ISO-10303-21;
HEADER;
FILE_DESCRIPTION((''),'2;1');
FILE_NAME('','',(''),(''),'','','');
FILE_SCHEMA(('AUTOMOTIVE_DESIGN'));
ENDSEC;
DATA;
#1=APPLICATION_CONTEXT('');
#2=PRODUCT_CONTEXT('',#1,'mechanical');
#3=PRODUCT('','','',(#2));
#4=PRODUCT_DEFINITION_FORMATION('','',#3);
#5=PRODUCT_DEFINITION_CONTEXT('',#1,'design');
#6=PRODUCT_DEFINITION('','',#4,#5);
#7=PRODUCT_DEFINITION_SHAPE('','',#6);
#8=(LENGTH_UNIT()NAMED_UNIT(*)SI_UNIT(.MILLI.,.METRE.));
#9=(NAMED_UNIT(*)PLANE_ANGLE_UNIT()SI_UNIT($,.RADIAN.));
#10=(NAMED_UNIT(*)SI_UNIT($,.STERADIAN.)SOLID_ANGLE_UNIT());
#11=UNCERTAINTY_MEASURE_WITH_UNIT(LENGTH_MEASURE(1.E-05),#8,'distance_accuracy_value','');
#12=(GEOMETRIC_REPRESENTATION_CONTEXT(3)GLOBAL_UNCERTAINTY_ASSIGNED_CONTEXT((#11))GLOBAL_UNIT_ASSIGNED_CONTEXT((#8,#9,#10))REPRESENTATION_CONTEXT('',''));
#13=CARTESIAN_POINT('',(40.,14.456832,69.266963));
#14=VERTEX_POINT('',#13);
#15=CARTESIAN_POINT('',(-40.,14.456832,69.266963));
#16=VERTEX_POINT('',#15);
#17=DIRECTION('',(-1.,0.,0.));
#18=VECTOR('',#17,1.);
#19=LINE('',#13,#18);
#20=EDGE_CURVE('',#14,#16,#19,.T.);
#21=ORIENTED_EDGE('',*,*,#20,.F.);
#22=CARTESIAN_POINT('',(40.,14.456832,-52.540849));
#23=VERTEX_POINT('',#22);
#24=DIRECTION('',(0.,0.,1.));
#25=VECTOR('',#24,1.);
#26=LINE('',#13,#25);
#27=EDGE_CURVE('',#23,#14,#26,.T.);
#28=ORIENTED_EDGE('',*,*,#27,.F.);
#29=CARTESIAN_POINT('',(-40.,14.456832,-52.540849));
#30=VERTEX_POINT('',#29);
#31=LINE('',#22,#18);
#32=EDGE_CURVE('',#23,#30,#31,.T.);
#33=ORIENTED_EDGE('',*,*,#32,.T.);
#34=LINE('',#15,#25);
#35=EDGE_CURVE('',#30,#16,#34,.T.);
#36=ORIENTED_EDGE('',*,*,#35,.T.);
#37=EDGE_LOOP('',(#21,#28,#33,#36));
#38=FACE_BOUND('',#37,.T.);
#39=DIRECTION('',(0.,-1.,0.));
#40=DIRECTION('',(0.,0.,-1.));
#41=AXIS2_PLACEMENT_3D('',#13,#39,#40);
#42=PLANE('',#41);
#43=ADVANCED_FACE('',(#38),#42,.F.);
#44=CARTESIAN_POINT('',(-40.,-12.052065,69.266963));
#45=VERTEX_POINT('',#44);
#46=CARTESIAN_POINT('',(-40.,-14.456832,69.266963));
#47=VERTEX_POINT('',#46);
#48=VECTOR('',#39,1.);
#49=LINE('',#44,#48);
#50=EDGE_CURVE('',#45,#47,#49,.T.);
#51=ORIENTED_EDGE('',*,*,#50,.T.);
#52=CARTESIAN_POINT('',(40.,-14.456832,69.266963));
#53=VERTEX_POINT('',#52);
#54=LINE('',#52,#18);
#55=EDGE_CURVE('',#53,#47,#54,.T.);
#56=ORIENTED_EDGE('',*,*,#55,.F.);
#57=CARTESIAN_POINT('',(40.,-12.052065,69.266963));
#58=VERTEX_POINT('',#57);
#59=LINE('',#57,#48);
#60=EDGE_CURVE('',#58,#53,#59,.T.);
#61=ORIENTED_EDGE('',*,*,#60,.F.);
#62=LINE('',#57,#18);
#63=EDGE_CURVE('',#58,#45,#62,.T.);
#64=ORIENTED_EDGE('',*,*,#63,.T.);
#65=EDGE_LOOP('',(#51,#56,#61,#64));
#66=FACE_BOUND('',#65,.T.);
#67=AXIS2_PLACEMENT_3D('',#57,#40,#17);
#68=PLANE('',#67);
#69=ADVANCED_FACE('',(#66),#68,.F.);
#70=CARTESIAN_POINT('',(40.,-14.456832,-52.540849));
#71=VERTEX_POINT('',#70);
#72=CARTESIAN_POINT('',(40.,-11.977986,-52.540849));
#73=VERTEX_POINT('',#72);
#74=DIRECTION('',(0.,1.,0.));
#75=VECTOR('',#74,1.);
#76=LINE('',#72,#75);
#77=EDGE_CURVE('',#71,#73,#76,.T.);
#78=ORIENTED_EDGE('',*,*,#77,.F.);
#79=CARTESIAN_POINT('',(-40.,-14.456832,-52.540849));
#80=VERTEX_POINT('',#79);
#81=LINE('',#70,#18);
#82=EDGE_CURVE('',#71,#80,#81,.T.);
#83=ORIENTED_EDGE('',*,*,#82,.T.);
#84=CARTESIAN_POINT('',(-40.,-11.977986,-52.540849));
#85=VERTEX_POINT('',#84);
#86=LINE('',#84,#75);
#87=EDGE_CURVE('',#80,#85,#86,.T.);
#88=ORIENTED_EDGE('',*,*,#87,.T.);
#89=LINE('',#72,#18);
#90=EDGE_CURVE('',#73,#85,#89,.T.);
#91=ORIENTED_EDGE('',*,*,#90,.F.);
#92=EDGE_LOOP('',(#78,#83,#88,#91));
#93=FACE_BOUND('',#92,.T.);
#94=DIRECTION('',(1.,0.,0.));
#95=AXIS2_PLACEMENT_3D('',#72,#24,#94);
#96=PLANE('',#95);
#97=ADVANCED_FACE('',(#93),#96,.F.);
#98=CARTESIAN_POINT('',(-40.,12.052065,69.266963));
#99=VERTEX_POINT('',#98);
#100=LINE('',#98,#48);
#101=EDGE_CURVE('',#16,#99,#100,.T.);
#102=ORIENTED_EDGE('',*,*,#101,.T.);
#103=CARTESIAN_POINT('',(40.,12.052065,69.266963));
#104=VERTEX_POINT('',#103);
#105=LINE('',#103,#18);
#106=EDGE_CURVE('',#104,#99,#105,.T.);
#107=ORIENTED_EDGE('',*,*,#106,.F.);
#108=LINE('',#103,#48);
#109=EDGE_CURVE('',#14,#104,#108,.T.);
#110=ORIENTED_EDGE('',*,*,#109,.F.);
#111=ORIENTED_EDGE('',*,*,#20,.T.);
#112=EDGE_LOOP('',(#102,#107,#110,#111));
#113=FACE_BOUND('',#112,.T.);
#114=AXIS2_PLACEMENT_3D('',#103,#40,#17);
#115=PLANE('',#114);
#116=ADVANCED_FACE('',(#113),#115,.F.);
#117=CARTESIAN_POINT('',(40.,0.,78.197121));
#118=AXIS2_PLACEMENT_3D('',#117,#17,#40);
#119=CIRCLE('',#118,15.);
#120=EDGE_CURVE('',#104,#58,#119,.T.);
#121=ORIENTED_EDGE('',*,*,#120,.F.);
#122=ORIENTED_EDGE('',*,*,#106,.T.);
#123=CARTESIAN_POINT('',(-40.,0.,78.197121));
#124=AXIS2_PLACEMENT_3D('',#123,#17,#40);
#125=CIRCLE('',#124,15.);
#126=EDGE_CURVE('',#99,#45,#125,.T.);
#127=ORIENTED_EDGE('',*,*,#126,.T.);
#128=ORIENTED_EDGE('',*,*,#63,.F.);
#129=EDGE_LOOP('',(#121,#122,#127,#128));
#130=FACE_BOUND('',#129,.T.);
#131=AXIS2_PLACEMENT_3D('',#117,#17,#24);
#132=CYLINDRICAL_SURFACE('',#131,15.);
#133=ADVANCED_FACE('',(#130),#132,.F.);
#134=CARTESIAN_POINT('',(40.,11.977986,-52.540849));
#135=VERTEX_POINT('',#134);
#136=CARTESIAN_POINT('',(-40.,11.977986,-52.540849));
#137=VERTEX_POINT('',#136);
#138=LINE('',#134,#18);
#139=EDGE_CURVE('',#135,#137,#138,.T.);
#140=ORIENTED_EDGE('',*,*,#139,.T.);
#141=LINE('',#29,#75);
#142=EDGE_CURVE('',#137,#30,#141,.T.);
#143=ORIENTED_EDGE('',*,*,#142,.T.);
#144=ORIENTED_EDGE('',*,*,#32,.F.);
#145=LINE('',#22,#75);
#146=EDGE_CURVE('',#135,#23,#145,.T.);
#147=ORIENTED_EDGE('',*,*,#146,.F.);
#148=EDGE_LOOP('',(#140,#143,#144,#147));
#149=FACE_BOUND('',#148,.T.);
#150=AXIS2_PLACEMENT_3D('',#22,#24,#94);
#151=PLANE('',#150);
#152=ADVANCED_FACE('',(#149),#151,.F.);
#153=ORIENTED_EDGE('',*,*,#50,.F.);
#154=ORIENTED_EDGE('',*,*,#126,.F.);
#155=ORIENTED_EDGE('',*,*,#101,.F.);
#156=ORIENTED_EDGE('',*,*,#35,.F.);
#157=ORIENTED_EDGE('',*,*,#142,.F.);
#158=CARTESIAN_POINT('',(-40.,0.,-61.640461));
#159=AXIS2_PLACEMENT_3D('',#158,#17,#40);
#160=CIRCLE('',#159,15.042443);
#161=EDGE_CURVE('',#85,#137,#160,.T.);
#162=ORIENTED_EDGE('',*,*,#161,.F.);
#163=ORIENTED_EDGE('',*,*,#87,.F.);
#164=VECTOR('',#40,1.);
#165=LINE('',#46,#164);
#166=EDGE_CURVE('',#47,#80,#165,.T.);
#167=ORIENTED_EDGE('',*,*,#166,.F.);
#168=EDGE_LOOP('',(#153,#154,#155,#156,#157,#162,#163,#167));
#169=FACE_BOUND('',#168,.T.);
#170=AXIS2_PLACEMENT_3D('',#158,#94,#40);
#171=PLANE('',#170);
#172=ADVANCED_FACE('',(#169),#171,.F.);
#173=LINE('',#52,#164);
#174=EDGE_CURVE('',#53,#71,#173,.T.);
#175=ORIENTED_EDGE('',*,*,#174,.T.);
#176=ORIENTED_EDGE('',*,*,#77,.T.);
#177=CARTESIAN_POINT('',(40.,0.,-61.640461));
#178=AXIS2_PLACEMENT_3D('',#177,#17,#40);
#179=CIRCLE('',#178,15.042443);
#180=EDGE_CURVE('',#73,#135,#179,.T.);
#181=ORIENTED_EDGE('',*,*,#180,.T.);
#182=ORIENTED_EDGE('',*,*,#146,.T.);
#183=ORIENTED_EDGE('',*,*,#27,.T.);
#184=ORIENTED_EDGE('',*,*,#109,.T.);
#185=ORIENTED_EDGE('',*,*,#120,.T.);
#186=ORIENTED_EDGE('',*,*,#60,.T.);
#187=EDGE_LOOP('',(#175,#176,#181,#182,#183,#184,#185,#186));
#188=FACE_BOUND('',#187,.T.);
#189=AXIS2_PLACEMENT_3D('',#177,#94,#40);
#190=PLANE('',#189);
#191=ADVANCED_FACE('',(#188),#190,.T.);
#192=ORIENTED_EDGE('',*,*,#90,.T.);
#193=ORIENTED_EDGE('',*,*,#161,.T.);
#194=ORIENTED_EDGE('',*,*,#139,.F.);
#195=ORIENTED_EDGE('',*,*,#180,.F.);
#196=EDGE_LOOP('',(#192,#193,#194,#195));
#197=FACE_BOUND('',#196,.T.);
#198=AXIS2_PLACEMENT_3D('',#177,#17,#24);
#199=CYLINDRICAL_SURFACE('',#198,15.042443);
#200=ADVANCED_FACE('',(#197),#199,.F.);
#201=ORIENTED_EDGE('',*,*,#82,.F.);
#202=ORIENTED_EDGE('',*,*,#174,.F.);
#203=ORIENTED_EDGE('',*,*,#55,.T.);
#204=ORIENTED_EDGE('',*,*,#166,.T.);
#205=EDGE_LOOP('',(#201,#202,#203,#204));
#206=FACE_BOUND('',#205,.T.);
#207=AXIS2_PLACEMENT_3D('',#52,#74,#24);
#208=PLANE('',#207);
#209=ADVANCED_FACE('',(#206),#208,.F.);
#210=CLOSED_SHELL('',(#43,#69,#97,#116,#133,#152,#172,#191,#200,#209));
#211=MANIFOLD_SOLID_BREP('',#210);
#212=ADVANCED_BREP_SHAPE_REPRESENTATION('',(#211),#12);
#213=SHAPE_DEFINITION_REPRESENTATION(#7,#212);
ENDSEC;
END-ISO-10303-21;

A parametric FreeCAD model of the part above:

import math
import FreeCAD as App
import Part
import Sketcher

V = App.Vector
Q = App.Units.Quantity

doc = App.newDocument("Part")
body = doc.addObject("PartDesign::Body", "Body")

sketch1 = doc.addObject("Sketcher::SketchObject", "Sketch")
body.addObject(sketch1)
sketch1.AttachmentSupport = (doc.YZ_Plane, [""])
sketch1.MapMode = "FlatFace"
sketch1.addGeometry([
    Part.LineSegment(V(14.456832, 69.266963, 0), V(12.052065, 69.266963, 0)),
    Part.ArcOfCircle(Part.Circle(V(0, 78.197121, 0), V(0, 0, 1), 15), math.radians(-143.462849), math.radians(-36.537151)),
    Part.LineSegment(V(-12.052065, 69.266963, 0), V(-14.456832, 69.266963, 0)),
    Part.LineSegment(V(-14.456832, 69.266963, 0), V(-14.456832, -52.540849, 0)),
    Part.LineSegment(V(-14.456832, -52.540849, 0), V(-11.977986, -52.540849, 0)),
    Part.ArcOfCircle(Part.Circle(V(0, -61.640461, 0), V(0, 0, 1), 15.042443), math.radians(37.223743), math.radians(142.776257)),
    Part.LineSegment(V(11.977986, -52.540849, 0), V(14.456832, -52.540849, 0)),
    Part.LineSegment(V(14.456832, -52.540849, 0), V(14.456832, 69.266963, 0)),
], False)
sketch1.addConstraint([
    Sketcher.Constraint("Coincident", 0, 2, 1, 2),
    Sketcher.Constraint("Coincident", 1, 1, 2, 1),
    Sketcher.Constraint("Coincident", 2, 2, 3, 1),
    Sketcher.Constraint("Coincident", 3, 2, 4, 1),
    Sketcher.Constraint("Coincident", 4, 2, 5, 2),
    Sketcher.Constraint("Coincident", 5, 1, 6, 1),
    Sketcher.Constraint("Coincident", 6, 2, 7, 1),
    Sketcher.Constraint("Coincident", 7, 2, 0, 1),
    Sketcher.Constraint("Horizontal", 0),
    Sketcher.Constraint("Horizontal", 2),
    Sketcher.Constraint("Vertical", 3),
    Sketcher.Constraint("Horizontal", 4),
    Sketcher.Constraint("Horizontal", 6),
    Sketcher.Constraint("Vertical", 7),
    Sketcher.Constraint("Symmetric", 0, 2, 1, 1, -2),
    Sketcher.Constraint("Symmetric", 4, 2, 5, 1, -2),
    Sketcher.Constraint("Equal", 0, 2),
    Sketcher.Constraint("Radius", 1, Q("15 mm")),
    Sketcher.Constraint("Radius", 5, Q("15.042443 mm")),
    Sketcher.Constraint("DistanceY", 3, 2, 3, 1, Q("121.807811 mm")),
    Sketcher.Constraint("DistanceX", 0, 2, 0, 1, Q("2.404767 mm")),
    Sketcher.Constraint("DistanceX", 4, 1, 4, 2, Q("2.478846 mm")),
    Sketcher.Constraint("DistanceY", -1, 1, 1, 3, Q("78.197121 mm")),
    Sketcher.Constraint("DistanceY", 5, 3, -1, 1, Q("61.640461 mm")),
])
pad1 = doc.addObject("PartDesign::Pad", "Pad")
body.addObject(pad1)
pad1.Profile = sketch1
pad1.Length = 80
pad1.Midplane = True

doc.recompute()
